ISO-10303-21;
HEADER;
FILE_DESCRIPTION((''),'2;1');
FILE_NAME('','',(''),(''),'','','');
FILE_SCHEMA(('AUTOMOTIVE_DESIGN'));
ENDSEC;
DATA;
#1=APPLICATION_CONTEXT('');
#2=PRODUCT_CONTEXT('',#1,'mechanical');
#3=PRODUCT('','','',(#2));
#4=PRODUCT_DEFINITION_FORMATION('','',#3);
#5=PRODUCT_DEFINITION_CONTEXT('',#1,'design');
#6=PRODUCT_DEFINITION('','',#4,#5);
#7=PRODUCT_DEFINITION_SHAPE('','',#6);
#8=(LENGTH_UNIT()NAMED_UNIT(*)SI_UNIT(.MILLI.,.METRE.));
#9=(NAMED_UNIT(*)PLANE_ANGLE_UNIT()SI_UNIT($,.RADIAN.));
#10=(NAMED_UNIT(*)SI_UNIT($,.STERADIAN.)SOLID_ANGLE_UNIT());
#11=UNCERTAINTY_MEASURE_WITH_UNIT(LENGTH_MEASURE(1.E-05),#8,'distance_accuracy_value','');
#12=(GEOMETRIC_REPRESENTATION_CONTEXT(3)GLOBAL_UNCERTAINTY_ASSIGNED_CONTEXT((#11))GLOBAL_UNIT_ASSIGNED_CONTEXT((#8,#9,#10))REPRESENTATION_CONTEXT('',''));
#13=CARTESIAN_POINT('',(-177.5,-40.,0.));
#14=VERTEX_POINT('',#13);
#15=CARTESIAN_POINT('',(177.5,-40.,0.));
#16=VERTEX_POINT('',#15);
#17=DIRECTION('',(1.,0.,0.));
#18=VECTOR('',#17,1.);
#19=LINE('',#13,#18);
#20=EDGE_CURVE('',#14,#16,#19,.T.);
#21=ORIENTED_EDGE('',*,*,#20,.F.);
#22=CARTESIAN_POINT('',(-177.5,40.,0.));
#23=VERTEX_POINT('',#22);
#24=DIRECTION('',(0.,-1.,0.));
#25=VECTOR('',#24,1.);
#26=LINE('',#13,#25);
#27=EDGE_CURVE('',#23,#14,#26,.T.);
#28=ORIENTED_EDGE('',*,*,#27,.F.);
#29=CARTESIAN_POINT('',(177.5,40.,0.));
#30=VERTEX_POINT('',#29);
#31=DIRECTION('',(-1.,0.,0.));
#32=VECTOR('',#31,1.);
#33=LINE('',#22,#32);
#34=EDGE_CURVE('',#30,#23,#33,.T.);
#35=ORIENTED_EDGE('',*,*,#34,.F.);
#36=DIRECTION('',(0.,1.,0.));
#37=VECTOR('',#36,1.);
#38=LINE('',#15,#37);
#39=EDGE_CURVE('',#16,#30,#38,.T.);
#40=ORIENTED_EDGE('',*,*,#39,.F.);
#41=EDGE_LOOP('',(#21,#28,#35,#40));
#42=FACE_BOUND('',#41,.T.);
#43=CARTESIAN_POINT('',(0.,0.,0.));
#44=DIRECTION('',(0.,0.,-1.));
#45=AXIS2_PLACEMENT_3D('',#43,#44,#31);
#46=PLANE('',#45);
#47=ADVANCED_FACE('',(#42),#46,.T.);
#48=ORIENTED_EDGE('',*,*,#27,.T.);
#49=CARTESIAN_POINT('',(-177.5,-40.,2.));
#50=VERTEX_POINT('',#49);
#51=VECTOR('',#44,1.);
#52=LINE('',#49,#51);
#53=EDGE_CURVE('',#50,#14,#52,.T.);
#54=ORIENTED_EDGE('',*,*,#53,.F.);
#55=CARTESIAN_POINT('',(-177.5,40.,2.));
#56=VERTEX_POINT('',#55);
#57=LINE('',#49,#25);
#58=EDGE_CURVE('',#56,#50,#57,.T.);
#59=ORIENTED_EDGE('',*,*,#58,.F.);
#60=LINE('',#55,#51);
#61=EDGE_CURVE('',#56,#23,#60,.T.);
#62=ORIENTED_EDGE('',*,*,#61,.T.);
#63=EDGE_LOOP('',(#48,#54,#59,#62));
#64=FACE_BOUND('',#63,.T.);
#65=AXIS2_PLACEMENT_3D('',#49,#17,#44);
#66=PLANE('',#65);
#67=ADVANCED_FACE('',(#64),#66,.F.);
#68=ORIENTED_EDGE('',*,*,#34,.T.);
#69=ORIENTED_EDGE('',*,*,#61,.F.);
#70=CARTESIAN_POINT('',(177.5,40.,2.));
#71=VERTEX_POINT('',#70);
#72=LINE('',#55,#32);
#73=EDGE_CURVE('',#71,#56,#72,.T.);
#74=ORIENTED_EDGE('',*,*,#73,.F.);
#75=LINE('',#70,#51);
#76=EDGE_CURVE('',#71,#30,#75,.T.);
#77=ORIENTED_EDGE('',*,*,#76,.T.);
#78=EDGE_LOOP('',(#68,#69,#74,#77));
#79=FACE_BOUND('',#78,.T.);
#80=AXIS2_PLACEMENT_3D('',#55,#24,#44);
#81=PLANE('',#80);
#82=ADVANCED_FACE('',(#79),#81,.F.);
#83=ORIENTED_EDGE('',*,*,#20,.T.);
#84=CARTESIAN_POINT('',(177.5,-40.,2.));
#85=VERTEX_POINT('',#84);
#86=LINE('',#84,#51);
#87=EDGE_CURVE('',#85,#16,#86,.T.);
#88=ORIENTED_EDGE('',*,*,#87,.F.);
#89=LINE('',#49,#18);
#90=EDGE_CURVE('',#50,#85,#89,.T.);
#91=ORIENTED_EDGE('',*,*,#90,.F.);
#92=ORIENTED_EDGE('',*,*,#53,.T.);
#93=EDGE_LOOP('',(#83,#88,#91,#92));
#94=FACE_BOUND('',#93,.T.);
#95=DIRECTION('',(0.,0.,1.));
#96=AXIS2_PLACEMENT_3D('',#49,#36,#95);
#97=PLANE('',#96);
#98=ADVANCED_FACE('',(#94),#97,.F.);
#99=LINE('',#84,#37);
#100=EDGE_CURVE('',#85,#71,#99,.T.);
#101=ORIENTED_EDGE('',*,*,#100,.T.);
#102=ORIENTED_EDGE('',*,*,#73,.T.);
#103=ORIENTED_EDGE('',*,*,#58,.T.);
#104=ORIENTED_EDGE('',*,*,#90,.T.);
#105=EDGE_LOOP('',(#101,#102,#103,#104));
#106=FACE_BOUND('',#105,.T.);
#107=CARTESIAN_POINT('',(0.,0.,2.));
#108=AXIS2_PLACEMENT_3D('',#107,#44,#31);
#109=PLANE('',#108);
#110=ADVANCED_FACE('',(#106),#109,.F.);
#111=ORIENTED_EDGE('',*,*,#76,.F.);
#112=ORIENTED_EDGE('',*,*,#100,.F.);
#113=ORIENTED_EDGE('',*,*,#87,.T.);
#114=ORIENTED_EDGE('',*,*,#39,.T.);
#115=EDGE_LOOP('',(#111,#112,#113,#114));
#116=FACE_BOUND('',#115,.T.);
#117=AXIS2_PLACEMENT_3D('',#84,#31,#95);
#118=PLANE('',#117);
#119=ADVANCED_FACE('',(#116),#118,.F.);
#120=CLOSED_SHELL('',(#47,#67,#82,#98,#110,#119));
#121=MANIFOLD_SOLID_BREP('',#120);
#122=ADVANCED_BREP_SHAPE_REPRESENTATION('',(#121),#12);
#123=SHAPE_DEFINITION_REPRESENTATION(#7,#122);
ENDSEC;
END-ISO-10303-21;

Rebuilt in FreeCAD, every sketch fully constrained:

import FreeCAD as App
import Part
import Sketcher
from FreeCAD import Vector


def add_polygon(sketch, points):
    """Adds a closed chain of lines whose ends are joined by coincident constraints."""
    first, n = sketch.GeometryCount, len(points)
    for a, b in zip(points, points[1:] + points[:1]):
        sketch.addGeometry(Part.LineSegment(App.Vector(*a, 0), App.Vector(*b, 0)), False)
    for i in range(n):
        sketch.addConstraint(Sketcher.Constraint("Coincident", first + i, 2, first + (i + 1) % n, 1))

doc = App.newDocument("Part")
body = doc.addObject("PartDesign::Body", "Body")

sketch1 = body.newObject("Sketcher::SketchObject", "Sketch")
sketch1.AttachmentSupport = (doc.getObject("XY_Plane"), [""])
sketch1.MapMode = "FlatFace"
add_polygon(sketch1, [(-177.5, 40), (-177.5, -40), (177.5, -40), (177.5, 40)])
sketch1.addConstraint(Sketcher.Constraint("Vertical", 0))
sketch1.addConstraint(Sketcher.Constraint("Horizontal", 1))
sketch1.addConstraint(Sketcher.Constraint("Vertical", 2))
sketch1.addConstraint(Sketcher.Constraint("Horizontal", 3))
sketch1.addConstraint(Sketcher.Constraint("Symmetric", 0, 2, 2, 2, -1, 1))
sketch1.addConstraint(Sketcher.Constraint("DistanceX", 1, 1, 1, 2, 355.0))
sketch1.addConstraint(Sketcher.Constraint("DistanceY", 0, 2, 0, 1, 80.0))
pad1 = body.newObject("PartDesign::Pad", "Pad")
pad1.Profile = sketch1
pad1.Length = 2

doc.recompute()
